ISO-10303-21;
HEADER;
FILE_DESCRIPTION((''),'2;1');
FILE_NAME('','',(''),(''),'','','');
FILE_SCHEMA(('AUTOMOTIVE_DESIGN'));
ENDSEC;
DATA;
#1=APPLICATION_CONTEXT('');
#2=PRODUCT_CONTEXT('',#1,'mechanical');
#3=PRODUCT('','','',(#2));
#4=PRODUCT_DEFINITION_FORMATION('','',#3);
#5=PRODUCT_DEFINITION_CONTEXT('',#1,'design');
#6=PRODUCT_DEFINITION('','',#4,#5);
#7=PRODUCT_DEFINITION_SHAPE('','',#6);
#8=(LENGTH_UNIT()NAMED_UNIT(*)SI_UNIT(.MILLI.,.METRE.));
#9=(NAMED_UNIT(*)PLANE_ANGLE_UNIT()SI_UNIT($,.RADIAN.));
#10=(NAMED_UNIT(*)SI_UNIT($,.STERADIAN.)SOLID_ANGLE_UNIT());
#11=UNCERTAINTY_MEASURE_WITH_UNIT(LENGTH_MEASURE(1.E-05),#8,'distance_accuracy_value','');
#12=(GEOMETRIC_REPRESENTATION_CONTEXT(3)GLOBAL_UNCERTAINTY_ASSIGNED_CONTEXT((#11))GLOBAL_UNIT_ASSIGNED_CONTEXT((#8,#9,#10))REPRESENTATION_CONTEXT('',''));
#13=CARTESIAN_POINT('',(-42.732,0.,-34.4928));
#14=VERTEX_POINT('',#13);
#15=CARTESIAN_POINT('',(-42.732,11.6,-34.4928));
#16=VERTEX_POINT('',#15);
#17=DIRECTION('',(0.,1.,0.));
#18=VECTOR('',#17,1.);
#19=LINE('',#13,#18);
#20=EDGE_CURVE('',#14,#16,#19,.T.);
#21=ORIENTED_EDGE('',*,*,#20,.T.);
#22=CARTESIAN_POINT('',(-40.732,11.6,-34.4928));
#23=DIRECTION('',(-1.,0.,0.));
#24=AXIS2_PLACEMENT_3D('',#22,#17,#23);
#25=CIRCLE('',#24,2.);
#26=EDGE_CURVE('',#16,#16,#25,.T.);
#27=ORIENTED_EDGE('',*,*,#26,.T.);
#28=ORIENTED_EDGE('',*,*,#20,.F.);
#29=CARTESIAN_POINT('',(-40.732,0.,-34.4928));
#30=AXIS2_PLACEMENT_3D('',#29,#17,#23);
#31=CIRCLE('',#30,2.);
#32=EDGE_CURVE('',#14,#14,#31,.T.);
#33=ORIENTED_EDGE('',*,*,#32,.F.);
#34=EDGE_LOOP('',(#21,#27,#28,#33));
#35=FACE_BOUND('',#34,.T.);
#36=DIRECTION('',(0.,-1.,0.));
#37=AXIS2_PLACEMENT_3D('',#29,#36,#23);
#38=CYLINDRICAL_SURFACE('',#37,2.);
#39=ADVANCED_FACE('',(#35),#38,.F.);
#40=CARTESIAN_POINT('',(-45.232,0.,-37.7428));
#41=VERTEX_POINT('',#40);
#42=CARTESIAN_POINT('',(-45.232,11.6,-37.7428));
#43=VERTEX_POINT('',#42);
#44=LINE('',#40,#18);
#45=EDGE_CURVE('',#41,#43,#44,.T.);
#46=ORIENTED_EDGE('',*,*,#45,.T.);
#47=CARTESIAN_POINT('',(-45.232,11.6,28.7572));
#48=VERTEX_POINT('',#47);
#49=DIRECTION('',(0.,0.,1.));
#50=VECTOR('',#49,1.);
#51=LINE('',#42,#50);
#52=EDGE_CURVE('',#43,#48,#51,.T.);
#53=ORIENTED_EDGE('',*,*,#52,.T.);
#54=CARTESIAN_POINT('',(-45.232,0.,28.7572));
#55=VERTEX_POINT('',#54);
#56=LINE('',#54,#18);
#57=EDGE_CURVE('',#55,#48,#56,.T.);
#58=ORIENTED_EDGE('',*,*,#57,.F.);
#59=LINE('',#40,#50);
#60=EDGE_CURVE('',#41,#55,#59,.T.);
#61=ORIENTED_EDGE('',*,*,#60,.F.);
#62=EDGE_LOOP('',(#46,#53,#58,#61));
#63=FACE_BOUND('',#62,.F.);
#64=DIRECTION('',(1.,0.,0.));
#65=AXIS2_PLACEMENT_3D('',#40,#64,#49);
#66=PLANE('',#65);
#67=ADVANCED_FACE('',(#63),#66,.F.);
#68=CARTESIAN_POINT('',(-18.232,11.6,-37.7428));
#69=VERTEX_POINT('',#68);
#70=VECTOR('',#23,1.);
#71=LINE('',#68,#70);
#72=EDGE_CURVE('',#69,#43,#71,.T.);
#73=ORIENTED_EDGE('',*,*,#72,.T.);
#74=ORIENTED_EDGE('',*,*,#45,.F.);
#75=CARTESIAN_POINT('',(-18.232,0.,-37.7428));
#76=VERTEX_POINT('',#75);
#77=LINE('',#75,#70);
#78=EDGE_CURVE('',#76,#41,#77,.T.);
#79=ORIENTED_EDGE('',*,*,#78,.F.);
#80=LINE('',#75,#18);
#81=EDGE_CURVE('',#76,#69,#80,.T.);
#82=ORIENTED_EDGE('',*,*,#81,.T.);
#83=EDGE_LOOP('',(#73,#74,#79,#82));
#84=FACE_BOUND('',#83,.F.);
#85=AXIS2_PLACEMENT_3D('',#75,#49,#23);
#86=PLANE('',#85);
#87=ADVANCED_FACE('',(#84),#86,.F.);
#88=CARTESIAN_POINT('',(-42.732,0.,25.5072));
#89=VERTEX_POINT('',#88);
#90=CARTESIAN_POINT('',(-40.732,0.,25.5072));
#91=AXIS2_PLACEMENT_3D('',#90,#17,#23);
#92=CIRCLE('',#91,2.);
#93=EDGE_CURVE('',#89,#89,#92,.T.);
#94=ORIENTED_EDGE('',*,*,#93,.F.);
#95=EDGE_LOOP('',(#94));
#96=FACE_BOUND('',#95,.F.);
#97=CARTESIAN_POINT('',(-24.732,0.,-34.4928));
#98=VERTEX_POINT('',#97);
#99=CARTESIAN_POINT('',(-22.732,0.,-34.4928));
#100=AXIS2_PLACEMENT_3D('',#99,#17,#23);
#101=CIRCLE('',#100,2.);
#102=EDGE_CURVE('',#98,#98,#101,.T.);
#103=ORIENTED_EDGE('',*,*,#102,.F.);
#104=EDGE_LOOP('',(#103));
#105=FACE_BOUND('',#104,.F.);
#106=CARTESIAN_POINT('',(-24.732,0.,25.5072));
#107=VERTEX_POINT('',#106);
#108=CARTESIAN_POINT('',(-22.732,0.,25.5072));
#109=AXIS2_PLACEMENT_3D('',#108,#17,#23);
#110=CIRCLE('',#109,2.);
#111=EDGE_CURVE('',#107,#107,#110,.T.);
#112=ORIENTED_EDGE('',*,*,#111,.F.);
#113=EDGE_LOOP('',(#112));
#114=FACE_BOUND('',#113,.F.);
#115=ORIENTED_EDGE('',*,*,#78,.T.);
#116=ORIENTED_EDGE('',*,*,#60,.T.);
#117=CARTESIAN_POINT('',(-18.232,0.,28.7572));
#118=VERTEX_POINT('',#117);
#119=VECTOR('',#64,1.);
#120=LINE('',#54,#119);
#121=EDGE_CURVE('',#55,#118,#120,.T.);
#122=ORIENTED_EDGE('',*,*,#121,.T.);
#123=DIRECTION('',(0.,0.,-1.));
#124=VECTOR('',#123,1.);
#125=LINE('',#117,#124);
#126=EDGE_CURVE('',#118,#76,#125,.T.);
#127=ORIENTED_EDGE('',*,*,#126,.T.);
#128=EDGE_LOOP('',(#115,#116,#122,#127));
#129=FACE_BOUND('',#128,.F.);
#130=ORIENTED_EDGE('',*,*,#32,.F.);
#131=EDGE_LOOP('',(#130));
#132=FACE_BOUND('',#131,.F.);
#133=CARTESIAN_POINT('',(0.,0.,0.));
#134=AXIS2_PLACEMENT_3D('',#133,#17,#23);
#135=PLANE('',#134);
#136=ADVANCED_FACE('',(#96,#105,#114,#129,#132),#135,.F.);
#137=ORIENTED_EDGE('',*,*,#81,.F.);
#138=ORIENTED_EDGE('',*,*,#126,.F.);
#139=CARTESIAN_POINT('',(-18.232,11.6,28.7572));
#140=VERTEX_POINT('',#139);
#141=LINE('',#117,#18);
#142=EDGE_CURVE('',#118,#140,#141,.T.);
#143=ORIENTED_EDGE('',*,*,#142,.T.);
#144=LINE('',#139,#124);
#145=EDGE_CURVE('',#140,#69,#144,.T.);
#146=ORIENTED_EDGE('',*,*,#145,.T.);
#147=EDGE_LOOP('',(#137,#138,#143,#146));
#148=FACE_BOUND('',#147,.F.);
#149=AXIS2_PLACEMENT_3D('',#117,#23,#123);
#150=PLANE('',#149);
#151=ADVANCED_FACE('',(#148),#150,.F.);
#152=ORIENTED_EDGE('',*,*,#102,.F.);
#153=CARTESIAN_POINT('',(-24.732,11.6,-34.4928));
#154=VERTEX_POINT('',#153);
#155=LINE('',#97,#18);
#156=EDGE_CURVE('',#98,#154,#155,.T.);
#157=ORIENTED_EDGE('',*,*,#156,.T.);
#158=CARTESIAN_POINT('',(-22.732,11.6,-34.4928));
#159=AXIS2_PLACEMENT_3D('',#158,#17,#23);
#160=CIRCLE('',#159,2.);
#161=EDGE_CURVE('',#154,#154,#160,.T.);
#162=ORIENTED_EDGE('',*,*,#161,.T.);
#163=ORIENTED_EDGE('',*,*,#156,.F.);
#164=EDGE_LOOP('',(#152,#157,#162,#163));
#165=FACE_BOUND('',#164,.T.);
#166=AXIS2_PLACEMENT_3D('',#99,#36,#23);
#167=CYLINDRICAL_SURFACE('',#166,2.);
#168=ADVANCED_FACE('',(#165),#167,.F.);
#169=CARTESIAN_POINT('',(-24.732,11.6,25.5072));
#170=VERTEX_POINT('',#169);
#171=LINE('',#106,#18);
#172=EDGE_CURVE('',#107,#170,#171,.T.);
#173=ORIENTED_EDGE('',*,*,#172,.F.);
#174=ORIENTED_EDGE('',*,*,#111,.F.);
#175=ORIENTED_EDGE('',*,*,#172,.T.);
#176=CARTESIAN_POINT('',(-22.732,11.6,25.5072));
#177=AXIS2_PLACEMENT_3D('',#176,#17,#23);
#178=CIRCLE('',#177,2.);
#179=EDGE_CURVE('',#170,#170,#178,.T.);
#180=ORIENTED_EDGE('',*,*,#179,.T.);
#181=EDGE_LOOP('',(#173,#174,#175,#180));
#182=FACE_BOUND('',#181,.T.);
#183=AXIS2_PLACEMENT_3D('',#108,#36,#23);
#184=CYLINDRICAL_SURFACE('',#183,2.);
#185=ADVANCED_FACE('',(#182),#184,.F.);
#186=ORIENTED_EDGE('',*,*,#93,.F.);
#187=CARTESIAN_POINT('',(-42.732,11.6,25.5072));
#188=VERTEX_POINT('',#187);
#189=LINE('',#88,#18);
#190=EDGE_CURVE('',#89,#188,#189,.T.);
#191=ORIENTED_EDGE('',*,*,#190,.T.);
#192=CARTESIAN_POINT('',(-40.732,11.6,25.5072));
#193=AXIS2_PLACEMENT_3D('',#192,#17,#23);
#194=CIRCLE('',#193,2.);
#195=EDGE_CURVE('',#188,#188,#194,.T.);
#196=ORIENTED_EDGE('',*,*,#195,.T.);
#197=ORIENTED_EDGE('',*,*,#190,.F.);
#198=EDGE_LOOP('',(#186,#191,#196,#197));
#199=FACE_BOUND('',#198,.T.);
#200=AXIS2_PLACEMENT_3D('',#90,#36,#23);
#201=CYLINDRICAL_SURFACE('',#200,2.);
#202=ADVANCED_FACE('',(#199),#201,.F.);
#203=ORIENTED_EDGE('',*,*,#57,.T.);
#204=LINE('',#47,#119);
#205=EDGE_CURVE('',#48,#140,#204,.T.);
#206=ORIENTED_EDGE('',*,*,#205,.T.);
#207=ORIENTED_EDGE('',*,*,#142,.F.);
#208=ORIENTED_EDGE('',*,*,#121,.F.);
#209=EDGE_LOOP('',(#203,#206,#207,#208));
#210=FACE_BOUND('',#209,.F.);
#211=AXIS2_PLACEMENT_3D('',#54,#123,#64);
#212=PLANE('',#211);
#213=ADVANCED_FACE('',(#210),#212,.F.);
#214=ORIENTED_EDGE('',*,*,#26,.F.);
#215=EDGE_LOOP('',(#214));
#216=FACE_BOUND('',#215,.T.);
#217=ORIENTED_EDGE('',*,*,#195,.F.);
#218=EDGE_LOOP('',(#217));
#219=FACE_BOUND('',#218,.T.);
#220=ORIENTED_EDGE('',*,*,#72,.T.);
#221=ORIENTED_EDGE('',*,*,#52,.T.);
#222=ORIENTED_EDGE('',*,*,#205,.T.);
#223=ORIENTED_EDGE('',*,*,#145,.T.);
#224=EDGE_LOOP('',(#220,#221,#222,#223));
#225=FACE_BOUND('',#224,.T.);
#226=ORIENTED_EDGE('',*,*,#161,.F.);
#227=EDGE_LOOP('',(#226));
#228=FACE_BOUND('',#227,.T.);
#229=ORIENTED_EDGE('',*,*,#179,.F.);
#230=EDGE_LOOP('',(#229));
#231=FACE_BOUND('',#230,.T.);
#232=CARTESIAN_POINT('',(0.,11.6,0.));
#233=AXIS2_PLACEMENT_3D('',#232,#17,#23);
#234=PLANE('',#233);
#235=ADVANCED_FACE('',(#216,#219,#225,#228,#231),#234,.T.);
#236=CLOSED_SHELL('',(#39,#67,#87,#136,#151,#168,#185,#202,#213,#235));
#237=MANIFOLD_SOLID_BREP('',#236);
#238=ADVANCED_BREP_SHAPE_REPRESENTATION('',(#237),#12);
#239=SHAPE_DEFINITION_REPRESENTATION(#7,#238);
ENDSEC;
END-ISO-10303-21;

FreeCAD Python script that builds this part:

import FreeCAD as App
import Part
import Sketcher

V = App.Vector

doc = App.newDocument("Part")
params = doc.addObject("Spreadsheet::Sheet", "Params")
for row, (alias, value) in enumerate([
    ("sketch1_diameter", "4 mm"),
    ("sketch1_width", "27 mm"),
    ("sketch1_height", "66.5 mm"),
    ("pad1_length", "11.6 mm"),
], start=1):
    params.set(f"A{row}", alias)
    params.set(f"B{row}", "=" + value)
    params.setAlias(f"B{row}", alias)

body = doc.addObject("PartDesign::Body", "Body")

# Sketch on XZ plane
sketch1 = body.newObject("Sketcher::SketchObject", "Sketch")
sketch1.AttachmentSupport = (doc.getObject("XZ_Plane"), [""])
sketch1.MapMode = "FlatFace"
sketch1.addGeometry([
    Part.LineSegment(V(-45.2, -37.7, 0), V(-45.2, 28.8, 0)),  # 0
    Part.LineSegment(V(-45.2, 28.8, 0), V(-18.2, 28.8, 0)),  # 1
    Part.LineSegment(V(-18.2, 28.8, 0), V(-18.2, -37.7, 0)),  # 2
    Part.LineSegment(V(-18.2, -37.7, 0), V(-45.2, -37.7, 0)),  # 3
    Part.Circle(V(-22.7, -34.5, 0), V(0, 0, 1), 2),  # 4
    Part.Circle(V(-40.7, -34.5, 0), V(0, 0, 1), 2),  # 5
    Part.Circle(V(-22.7, 25.5, 0), V(0, 0, 1), 2),  # 6
    Part.Circle(V(-40.7, 25.5, 0), V(0, 0, 1), 2),  # 7
], False)
sketch1.addConstraint([
    Sketcher.Constraint("Coincident", 0, 2, 1, 1),
    Sketcher.Constraint("Coincident", 1, 2, 2, 1),
    Sketcher.Constraint("Coincident", 2, 2, 3, 1),
    Sketcher.Constraint("Coincident", 3, 2, 0, 1),
    Sketcher.Constraint("Vertical", 0),
    Sketcher.Constraint("Horizontal", 1),
    Sketcher.Constraint("Vertical", 2),
    Sketcher.Constraint("Horizontal", 3),
    Sketcher.Constraint("Equal", 4, 5),
    Sketcher.Constraint("Equal", 5, 6),
    Sketcher.Constraint("Equal", 6, 7),
    Sketcher.Constraint("Horizontal", 4, 3, 5, 3),
    Sketcher.Constraint("Horizontal", 6, 3, 7, 3),
    Sketcher.Constraint("Vertical", 4, 3, 6, 3),
    Sketcher.Constraint("Vertical", 5, 3, 7, 3),
    Sketcher.Constraint("Diameter", 4, 4.0),
    Sketcher.Constraint("DistanceX", 1, 1, 1, 2, 27.0),
    Sketcher.Constraint("DistanceY", 0, 1, 0, 2, 66.5),
    Sketcher.Constraint("DistanceX", 5, 3, 4, 3, 18.0),
    Sketcher.Constraint("DistanceY", 4, 3, 6, 3, 60.0),
    Sketcher.Constraint("DistanceX", 0, 2, 7, 3, 4.5),
    Sketcher.Constraint("DistanceY", 7, 3, 0, 2, 3.25),
    Sketcher.Constraint("DistanceX", 4, 3, -1, 1, 22.732),
    Sketcher.Constraint("DistanceY", 4, 3, -1, 1, 34.4928),
])
sketch1.setExpression("Constraints[15]", "Params.sketch1_diameter")
sketch1.setExpression("Constraints[16]", "Params.sketch1_width")
sketch1.setExpression("Constraints[17]", "Params.sketch1_height")
pad1 = body.newObject("PartDesign::Pad", "Pad")
pad1.Profile = sketch1
pad1.setExpression("Length", "Params.pad1_length")
pad1.Reversed = True

doc.recompute()
